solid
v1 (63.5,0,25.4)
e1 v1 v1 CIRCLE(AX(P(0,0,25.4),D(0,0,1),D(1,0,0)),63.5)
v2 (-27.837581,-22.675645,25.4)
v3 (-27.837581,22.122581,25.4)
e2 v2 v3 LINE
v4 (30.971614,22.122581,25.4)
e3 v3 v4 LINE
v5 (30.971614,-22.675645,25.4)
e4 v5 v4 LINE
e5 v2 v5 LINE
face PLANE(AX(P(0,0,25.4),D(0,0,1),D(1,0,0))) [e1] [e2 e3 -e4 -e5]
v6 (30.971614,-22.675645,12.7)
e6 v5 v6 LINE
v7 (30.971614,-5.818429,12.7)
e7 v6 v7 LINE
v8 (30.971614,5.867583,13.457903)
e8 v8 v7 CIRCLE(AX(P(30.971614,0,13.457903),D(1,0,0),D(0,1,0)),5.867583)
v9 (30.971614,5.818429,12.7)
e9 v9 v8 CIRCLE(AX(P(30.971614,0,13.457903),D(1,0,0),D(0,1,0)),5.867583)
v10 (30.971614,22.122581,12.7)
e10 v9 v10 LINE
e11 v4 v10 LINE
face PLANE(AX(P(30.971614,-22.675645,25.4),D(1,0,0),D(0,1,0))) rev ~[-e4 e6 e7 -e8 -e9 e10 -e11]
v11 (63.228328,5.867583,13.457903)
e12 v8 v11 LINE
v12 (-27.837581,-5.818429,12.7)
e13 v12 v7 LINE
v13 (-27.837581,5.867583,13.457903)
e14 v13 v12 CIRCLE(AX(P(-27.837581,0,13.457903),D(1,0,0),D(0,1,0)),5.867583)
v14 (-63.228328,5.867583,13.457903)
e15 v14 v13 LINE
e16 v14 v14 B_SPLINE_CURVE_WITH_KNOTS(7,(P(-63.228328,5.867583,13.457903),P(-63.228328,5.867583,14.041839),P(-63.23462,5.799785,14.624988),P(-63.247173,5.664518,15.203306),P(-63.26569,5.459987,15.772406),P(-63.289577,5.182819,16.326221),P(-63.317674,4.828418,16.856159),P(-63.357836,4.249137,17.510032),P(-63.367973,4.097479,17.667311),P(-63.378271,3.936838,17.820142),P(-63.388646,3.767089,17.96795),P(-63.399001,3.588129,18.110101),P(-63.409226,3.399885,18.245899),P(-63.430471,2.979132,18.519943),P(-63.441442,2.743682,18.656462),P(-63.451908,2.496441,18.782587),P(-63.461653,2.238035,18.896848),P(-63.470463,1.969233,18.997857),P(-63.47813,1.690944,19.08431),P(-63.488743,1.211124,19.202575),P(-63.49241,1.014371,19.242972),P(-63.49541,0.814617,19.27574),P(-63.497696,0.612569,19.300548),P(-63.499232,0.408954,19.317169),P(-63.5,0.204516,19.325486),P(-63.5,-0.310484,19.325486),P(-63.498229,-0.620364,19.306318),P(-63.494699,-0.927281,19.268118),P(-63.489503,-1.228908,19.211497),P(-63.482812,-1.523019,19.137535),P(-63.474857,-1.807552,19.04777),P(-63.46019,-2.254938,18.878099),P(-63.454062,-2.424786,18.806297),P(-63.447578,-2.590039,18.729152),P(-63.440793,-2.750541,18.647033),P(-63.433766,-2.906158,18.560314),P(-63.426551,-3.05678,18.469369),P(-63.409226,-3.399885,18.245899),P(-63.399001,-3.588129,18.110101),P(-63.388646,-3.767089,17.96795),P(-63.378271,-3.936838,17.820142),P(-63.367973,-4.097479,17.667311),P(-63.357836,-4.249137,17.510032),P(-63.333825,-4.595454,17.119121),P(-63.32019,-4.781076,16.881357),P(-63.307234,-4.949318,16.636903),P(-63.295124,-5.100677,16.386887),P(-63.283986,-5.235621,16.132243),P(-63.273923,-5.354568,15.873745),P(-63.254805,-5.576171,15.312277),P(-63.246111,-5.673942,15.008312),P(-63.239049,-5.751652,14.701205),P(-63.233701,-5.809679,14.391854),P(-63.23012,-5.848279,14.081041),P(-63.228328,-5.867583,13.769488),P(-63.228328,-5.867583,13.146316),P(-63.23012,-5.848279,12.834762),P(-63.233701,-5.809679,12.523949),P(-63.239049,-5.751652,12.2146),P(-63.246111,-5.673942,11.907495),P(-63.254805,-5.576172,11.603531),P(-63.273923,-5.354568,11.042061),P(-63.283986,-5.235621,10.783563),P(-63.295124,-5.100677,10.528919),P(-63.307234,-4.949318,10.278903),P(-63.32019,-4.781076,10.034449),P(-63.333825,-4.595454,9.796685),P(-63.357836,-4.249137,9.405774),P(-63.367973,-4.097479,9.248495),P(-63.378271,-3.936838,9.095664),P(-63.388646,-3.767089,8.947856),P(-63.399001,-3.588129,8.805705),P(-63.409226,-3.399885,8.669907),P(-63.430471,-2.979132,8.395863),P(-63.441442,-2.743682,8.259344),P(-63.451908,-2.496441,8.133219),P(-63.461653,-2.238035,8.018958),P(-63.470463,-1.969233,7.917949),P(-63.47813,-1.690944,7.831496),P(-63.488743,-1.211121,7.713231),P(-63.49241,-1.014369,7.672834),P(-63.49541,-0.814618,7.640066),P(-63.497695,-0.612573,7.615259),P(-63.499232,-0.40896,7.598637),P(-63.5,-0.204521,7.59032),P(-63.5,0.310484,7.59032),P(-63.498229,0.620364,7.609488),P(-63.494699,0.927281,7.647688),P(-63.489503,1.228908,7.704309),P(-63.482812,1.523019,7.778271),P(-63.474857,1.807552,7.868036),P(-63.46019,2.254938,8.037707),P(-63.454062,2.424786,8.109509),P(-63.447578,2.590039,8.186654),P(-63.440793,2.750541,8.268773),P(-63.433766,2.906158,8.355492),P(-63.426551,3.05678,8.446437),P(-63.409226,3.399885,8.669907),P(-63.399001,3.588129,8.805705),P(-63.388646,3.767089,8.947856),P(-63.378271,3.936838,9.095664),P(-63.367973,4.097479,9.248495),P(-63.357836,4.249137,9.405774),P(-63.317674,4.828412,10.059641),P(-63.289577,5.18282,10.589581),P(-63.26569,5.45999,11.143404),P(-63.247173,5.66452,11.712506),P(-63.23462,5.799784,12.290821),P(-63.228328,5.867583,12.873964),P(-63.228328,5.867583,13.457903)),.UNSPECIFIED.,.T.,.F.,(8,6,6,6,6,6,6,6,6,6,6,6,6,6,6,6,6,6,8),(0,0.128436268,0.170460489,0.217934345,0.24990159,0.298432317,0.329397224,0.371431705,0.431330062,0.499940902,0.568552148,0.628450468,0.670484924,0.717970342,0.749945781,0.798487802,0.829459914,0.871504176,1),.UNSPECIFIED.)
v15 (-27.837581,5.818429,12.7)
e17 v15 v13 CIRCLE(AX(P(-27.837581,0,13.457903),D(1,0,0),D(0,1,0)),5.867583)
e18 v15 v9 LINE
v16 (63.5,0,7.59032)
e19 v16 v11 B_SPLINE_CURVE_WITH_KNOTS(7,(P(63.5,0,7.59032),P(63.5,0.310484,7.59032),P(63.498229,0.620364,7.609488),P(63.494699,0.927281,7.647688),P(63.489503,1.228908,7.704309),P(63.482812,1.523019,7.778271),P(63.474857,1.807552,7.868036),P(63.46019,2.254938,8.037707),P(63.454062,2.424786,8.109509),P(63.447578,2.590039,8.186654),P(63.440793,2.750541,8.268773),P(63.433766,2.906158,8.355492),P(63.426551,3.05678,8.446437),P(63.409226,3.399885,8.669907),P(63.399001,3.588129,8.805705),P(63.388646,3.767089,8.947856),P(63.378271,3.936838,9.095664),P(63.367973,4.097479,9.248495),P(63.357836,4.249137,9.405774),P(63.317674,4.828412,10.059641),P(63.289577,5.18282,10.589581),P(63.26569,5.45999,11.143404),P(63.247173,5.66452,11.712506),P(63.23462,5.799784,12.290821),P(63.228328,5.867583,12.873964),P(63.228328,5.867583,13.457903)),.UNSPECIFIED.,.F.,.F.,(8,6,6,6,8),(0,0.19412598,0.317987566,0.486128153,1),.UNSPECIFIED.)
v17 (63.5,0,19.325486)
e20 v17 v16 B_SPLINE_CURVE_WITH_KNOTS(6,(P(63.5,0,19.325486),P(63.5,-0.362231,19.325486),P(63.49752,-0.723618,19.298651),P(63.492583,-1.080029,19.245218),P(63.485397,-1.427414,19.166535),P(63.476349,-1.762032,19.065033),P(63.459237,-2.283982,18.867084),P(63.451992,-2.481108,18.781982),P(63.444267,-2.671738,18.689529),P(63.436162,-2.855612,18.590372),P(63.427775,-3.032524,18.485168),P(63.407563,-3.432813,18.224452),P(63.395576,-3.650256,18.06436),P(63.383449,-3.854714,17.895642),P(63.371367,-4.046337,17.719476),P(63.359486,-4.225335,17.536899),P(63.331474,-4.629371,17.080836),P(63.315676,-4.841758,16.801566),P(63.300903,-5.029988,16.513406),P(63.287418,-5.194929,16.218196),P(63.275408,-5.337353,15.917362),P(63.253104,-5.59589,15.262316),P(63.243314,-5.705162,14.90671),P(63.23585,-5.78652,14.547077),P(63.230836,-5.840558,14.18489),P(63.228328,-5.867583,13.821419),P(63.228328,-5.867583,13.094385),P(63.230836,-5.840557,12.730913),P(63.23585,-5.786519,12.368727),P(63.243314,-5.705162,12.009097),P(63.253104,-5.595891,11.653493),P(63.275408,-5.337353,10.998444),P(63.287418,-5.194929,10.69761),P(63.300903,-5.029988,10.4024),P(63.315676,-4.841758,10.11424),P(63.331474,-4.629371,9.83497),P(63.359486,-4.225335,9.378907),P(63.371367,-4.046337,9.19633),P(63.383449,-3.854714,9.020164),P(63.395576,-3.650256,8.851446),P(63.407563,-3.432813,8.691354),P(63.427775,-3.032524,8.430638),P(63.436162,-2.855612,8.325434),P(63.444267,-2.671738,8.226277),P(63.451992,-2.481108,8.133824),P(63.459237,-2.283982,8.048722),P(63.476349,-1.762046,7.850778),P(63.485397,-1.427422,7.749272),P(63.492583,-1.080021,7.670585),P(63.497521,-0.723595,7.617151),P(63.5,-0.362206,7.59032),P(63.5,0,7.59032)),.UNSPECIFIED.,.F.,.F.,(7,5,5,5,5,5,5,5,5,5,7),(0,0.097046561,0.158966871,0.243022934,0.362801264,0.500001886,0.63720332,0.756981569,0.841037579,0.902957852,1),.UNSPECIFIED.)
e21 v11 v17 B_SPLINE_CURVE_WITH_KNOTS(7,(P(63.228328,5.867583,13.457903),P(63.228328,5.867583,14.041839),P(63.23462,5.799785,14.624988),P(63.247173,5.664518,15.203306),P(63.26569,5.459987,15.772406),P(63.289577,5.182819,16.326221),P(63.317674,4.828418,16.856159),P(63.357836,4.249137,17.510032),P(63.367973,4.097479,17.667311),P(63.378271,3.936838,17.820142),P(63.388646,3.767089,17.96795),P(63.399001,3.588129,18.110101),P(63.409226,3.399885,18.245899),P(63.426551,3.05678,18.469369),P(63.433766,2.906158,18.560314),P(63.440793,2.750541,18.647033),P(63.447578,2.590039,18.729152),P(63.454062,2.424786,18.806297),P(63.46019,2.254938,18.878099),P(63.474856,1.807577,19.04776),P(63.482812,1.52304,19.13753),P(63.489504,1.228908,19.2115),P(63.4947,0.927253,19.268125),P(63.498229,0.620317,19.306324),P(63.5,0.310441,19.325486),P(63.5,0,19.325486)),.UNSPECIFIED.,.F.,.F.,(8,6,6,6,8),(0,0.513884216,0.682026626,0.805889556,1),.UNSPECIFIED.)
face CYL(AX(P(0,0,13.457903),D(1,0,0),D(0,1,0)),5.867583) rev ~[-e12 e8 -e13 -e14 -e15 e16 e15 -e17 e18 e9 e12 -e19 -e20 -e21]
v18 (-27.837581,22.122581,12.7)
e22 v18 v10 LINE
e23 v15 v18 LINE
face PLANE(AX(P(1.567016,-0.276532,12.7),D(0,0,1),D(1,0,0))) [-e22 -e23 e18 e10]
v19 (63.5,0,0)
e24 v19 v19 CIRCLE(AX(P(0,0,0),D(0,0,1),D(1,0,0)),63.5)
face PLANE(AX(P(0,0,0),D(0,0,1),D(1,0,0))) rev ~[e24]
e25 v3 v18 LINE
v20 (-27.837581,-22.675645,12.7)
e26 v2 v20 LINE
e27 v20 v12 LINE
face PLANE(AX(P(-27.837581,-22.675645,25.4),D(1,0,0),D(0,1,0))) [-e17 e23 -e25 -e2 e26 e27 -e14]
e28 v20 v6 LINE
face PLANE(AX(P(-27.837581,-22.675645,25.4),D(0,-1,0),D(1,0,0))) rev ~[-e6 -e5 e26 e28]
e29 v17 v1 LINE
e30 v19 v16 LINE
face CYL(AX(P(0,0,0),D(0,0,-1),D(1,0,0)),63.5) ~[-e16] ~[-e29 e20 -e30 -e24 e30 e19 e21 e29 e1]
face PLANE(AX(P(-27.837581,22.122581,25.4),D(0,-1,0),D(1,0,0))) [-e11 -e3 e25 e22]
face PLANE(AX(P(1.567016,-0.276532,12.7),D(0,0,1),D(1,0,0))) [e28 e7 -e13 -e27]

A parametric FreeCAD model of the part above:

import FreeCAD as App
import Part
import Sketcher

V = App.Vector
Q = App.Units.Quantity

doc = App.newDocument("Part")
body = doc.addObject("PartDesign::Body", "Body")

# Sketch on XY plane
sketch1 = body.newObject("Sketcher::SketchObject", "Sketch")
sketch1.AttachmentSupport = (doc.getObject("XY_Plane"), [""])
sketch1.MapMode = "FlatFace"
sketch1.addGeometry(Part.Circle(V(0, 0, 0), V(0, 0, 1), 64), False)
sketch1.addConstraint([
    Sketcher.Constraint("Coincident", 0, 3, -1, 1),
    Sketcher.Constraint("Diameter", 0, Q("5 in")),
])
pad1 = body.newObject("PartDesign::Pad", "Pad")
pad1.Profile = sketch1
pad1.Length = Q("1 in")

# Sketch on XY plane
sketch2 = body.newObject("Sketcher::SketchObject", "Sketch001")
sketch2.AttachmentSupport = (doc.getObject("XY_Plane"), [""])
sketch2.MapMode = "FlatFace"
sketch2.AttachmentOffset = App.Placement(V(0, 0, 1 * 25.4), App.Rotation())
sketch2.addGeometry([
    Part.LineSegment(V(-28, 22, 0), V(-28, -23, 0)),
    Part.LineSegment(V(-28, -23, 0), V(31, -23, 0)),
    Part.LineSegment(V(31, -23, 0), V(31, 22, 0)),
    Part.LineSegment(V(31, 22, 0), V(-28, 22, 0)),
], False)
sketch2.addConstraint([
    Sketcher.Constraint("Coincident", 0, 2, 1, 1),
    Sketcher.Constraint("Coincident", 1, 2, 2, 1),
    Sketcher.Constraint("Coincident", 2, 2, 3, 1),
    Sketcher.Constraint("Coincident", 3, 2, 0, 1),
    Sketcher.Constraint("Vertical", 0),
    Sketcher.Constraint("Horizontal", 1),
    Sketcher.Constraint("Vertical", 2),
    Sketcher.Constraint("Horizontal", 3),
    Sketcher.Constraint("DistanceX", 1, 1, 1, 2, Q("58.809195 mm")),
    Sketcher.Constraint("DistanceY", 0, 2, 0, 1, Q("44.798226 mm")),
    Sketcher.Constraint("DistanceX", 0, 2, -1, 1, Q("27.837581 mm")),
    Sketcher.Constraint("DistanceY", -1, 1, 2, 2, Q("22.122581 mm")),
])
pocket1 = body.newObject("PartDesign::Pocket", "Pocket")
pocket1.Profile = sketch2
pocket1.Length = Q("0.5 in")

# Sketch on YZ plane
sketch3 = body.newObject("Sketcher::SketchObject", "Sketch002")
sketch3.AttachmentSupport = (doc.getObject("YZ_Plane"), [""])
sketch3.MapMode = "FlatFace"
sketch3.addGeometry(Part.Circle(V(0, 13, 0), V(0, 0, 1), 6), False)
sketch3.addConstraint([
    Sketcher.Constraint("PointOnObject", 0, 3, -2),
    Sketcher.Constraint("Diameter", 0, Q("11.735166 mm")),
    Sketcher.Constraint("DistanceY", -1, 1, 0, 3, Q("13.457903 mm")),
])
pocket2 = body.newObject("PartDesign::Pocket", "Pocket001")
pocket2.Profile = sketch3
pocket2.Length = Q("10 in")
pocket2.Midplane = True

doc.recompute()
